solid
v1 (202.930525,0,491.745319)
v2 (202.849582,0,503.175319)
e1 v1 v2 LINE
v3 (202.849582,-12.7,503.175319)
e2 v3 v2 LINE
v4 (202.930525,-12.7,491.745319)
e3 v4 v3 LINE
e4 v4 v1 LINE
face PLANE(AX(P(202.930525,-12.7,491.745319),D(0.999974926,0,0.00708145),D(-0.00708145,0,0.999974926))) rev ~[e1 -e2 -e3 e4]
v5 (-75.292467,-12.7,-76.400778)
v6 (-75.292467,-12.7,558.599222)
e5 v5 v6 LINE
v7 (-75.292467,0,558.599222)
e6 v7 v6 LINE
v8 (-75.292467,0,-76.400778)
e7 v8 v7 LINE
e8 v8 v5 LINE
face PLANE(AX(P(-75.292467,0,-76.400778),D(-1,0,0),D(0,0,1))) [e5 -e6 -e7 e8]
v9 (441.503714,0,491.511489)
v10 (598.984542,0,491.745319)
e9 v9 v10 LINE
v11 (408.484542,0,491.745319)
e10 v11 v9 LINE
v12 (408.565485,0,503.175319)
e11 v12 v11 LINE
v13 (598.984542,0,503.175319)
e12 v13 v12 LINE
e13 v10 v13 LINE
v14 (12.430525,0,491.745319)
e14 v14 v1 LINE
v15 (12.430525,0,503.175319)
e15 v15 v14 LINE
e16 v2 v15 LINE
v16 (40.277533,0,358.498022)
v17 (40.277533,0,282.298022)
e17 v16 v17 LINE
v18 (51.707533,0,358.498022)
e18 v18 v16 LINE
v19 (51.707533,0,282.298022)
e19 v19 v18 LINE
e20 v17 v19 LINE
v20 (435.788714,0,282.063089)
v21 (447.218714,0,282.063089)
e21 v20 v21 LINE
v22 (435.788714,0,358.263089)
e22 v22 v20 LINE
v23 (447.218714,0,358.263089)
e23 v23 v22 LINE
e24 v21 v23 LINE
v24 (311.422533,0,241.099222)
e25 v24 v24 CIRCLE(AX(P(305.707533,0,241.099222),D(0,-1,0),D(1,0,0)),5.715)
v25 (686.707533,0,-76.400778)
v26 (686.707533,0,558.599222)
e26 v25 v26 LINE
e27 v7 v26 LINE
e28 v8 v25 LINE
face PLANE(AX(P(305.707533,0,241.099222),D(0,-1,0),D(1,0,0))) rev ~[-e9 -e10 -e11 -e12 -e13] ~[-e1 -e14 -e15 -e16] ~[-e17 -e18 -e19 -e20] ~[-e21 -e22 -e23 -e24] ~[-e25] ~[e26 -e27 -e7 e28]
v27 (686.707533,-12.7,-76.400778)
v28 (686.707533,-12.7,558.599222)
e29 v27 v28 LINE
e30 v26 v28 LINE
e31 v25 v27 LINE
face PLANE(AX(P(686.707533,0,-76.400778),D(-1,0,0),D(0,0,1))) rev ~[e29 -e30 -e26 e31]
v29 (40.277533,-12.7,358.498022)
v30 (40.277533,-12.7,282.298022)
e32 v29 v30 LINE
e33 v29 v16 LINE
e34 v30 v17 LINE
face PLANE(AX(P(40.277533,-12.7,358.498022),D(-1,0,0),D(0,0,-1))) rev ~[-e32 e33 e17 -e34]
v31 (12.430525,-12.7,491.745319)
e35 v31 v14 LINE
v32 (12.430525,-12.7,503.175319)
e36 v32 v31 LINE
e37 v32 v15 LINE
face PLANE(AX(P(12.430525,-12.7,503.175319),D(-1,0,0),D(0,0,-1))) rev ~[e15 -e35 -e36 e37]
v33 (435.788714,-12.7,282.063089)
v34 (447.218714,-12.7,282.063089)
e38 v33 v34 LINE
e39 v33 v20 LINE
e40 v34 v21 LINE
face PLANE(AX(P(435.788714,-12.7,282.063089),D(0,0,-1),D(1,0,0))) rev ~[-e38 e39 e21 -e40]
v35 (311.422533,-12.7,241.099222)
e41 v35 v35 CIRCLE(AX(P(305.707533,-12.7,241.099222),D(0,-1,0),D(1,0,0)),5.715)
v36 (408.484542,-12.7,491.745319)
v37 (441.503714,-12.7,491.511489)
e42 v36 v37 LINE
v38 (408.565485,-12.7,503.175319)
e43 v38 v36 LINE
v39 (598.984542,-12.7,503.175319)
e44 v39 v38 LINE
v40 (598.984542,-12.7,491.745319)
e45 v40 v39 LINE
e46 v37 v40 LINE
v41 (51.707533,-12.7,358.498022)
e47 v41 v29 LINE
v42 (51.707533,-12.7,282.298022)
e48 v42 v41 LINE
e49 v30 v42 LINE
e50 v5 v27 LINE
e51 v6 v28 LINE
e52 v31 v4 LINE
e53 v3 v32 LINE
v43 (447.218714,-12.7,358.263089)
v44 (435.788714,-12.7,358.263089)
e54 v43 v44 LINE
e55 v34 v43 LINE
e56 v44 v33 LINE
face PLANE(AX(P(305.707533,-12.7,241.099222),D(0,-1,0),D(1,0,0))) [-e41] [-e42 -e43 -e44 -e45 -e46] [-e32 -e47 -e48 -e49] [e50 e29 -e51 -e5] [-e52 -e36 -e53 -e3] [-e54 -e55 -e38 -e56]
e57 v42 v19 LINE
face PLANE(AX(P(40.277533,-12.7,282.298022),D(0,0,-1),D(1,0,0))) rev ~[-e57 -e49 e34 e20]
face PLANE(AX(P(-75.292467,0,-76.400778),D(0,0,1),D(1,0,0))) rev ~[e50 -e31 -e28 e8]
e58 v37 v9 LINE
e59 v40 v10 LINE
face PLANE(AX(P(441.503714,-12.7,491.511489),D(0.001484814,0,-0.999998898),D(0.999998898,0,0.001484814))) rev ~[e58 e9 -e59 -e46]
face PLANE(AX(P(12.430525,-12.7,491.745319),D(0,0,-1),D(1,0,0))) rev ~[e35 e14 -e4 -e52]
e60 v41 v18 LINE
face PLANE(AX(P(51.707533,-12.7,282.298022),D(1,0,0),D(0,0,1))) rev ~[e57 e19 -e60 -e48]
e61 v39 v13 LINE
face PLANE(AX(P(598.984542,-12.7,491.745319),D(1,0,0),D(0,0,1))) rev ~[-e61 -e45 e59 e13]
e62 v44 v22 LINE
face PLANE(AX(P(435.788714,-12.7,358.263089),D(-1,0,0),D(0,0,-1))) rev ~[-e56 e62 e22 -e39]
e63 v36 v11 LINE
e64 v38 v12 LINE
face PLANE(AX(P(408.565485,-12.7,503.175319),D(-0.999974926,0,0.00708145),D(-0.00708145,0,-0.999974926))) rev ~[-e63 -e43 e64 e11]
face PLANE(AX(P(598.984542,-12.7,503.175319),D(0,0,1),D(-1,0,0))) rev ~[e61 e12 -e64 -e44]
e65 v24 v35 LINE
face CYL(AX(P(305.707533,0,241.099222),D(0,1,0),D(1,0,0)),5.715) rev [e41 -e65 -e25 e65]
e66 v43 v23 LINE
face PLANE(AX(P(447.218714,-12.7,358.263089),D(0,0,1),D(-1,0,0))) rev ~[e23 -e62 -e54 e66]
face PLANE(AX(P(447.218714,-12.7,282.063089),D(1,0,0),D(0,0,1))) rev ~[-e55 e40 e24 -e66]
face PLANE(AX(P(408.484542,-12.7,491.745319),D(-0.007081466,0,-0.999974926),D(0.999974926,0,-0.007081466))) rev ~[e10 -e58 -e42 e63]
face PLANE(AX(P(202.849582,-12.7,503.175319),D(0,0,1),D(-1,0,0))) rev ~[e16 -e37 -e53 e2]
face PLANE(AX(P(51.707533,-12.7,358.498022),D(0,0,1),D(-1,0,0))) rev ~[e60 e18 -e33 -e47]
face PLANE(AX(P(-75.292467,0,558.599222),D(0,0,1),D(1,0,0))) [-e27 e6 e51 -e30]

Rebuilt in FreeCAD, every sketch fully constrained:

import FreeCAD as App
import Part
import Sketcher
Q = App.Units.Quantity

doc = App.newDocument("Part")
body = doc.addObject("PartDesign::Body", "Body")

# Sketch on XZ plane
sketch1 = body.newObject("Sketcher::SketchObject", "Sketch")
sketch1.AttachmentSupport = (doc.getObject("XZ_Plane"), [""])
sketch1.MapMode = "FlatFace"
sketch1.addGeometry(Part.LineSegment(App.Vector(-75, 559, 0), App.Vector(-75, -76, 0)), False)
sketch1.addGeometry(Part.LineSegment(App.Vector(-75, -76, 0), App.Vector(687, -76, 0)), False)
sketch1.addGeometry(Part.LineSegment(App.Vector(687, -76, 0), App.Vector(687, 559, 0)), False)
sketch1.addGeometry(Part.LineSegment(App.Vector(687, 559, 0), App.Vector(-75, 559, 0)), False)
sketch1.addGeometry(Part.Circle(App.Vector(306, 241, 0), App.Vector(0, 0, 1), 6), False)
sketch1.addConstraint(Sketcher.Constraint("Coincident", 0, 2, 1, 1))
sketch1.addConstraint(Sketcher.Constraint("Coincident", 1, 2, 2, 1))
sketch1.addConstraint(Sketcher.Constraint("Coincident", 2, 2, 3, 1))
sketch1.addConstraint(Sketcher.Constraint("Coincident", 3, 2, 0, 1))
sketch1.addConstraint(Sketcher.Constraint("Vertical", 0))
sketch1.addConstraint(Sketcher.Constraint("Horizontal", 1))
sketch1.addConstraint(Sketcher.Constraint("Vertical", 2))
sketch1.addConstraint(Sketcher.Constraint("Horizontal", 3))
sketch1.addConstraint(Sketcher.Constraint("Diameter", 4, Q("0.45 in")))
sketch1.addConstraint(Sketcher.Constraint("DistanceX", 1, 1, 1, 2, Q("30 in")))
sketch1.addConstraint(Sketcher.Constraint("DistanceY", 0, 2, 0, 1, Q("25 in")))
sketch1.addConstraint(Sketcher.Constraint("DistanceX", 0, 2, 4, 3, Q("15 in")))
sketch1.addConstraint(Sketcher.Constraint("DistanceY", 0, 2, 4, 3, Q("12.5 in")))
sketch1.addConstraint(Sketcher.Constraint("DistanceY", -1, 1, 4, 3, Q("241.099222 mm")))
sketch1.addConstraint(Sketcher.Constraint("DistanceX", -1, 1, 4, 3, Q("305.707533 mm")))
pad1 = body.newObject("PartDesign::Pad", "Pad")
pad1.Profile = sketch1
pad1.Length = Q("0.5 in")

# Sketch on XZ plane
sketch2 = body.newObject("Sketcher::SketchObject", "Sketch001")
sketch2.AttachmentSupport = (doc.getObject("XZ_Plane"), [""])
sketch2.MapMode = "FlatFace"
sketch2.AttachmentOffset = App.Placement(App.Vector(0, 0, 0.5 * 25.4), App.Rotation())
sketch2.addGeometry(Part.LineSegment(App.Vector(12.430525, 491.745319, 0), App.Vector(202.930525, 491.745319, 0)), False)
sketch2.addGeometry(Part.LineSegment(App.Vector(202.930525, 491.745319, 0), App.Vector(202.849582, 503.175319, 0)), False)
sketch2.addGeometry(Part.LineSegment(App.Vector(202.849582, 503.175319, 0), App.Vector(12.430525, 503.175319, 0)), False)
sketch2.addGeometry(Part.LineSegment(App.Vector(12.430525, 503.175319, 0), App.Vector(12.430525, 491.745319, 0)), False)
sketch2.addGeometry(Part.LineSegment(App.Vector(51.707533, 282.298022, 0), App.Vector(51.707533, 358.498022, 0)), False)
sketch2.addGeometry(Part.LineSegment(App.Vector(51.707533, 358.498022, 0), App.Vector(40.277533, 358.498022, 0)), False)
sketch2.addGeometry(Part.LineSegment(App.Vector(40.277533, 358.498022, 0), App.Vector(40.277533, 282.298022, 0)), False)
sketch2.addGeometry(Part.LineSegment(App.Vector(40.277533, 282.298022, 0), App.Vector(51.707533, 282.298022, 0)), False)
sketch2.addGeometry(Part.LineSegment(App.Vector(598.984542, 491.745319, 0), App.Vector(598.984542, 503.175319, 0)), False)
sketch2.addGeometry(Part.LineSegment(App.Vector(598.984542, 503.175319, 0), App.Vector(408.565485, 503.175319, 0)), False)
sketch2.addGeometry(Part.LineSegment(App.Vector(408.565485, 503.175319, 0), App.Vector(408.484542, 491.745319, 0)), False)
sketch2.addGeometry(Part.LineSegment(App.Vector(408.484542, 491.745319, 0), App.Vector(441.503714, 491.511489, 0)), False)
sketch2.addGeometry(Part.LineSegment(App.Vector(441.503714, 491.511489, 0), App.Vector(598.984542, 491.745319, 0)), False)
sketch2.addGeometry(Part.LineSegment(App.Vector(447.218714, 358.263089, 0), App.Vector(435.788714, 358.263089, 0)), False)
sketch2.addGeometry(Part.LineSegment(App.Vector(435.788714, 358.263089, 0), App.Vector(435.788714, 282.063089, 0)), False)
sketch2.addGeometry(Part.LineSegment(App.Vector(435.788714, 282.063089, 0), App.Vector(447.218714, 282.063089, 0)), False)
sketch2.addGeometry(Part.LineSegment(App.Vector(447.218714, 282.063089, 0), App.Vector(447.218714, 358.263089, 0)), False)
sketch2.addConstraint(Sketcher.Constraint("Coincident", 0, 2, 1, 1))
sketch2.addConstraint(Sketcher.Constraint("Coincident", 1, 2, 2, 1))
sketch2.addConstraint(Sketcher.Constraint("Coincident", 2, 2, 3, 1))
sketch2.addConstraint(Sketcher.Constraint("Coincident", 3, 2, 0, 1))
sketch2.addConstraint(Sketcher.Constraint("Coincident", 4, 2, 5, 1))
sketch2.addConstraint(Sketcher.Constraint("Coincident", 5, 2, 6, 1))
sketch2.addConstraint(Sketcher.Constraint("Coincident", 6, 2, 7, 1))
sketch2.addConstraint(Sketcher.Constraint("Coincident", 7, 2, 4, 1))
sketch2.addConstraint(Sketcher.Constraint("Coincident", 8, 2, 9, 1))
sketch2.addConstraint(Sketcher.Constraint("Coincident", 9, 2, 10, 1))
sketch2.addConstraint(Sketcher.Constraint("Coincident", 10, 2, 11, 1))
sketch2.addConstraint(Sketcher.Constraint("Coincident", 11, 2, 12, 1))
sketch2.addConstraint(Sketcher.Constraint("Coincident", 12, 2, 8, 1))
sketch2.addConstraint(Sketcher.Constraint("Coincident", 13, 2, 14, 1))
sketch2.addConstraint(Sketcher.Constraint("Coincident", 14, 2, 15, 1))
sketch2.addConstraint(Sketcher.Constraint("Coincident", 15, 2, 16, 1))
sketch2.addConstraint(Sketcher.Constraint("Coincident", 16, 2, 13, 1))
sketch2.addConstraint(Sketcher.Constraint("Horizontal", 0))
sketch2.addConstraint(Sketcher.Constraint("Horizontal", 2))
sketch2.addConstraint(Sketcher.Constraint("Vertical", 3))
sketch2.addConstraint(Sketcher.Constraint("Vertical", 4))
sketch2.addConstraint(Sketcher.Constraint("Horizontal", 5))
sketch2.addConstraint(Sketcher.Constraint("Vertical", 6))
sketch2.addConstraint(Sketcher.Constraint("Horizontal", 7))
sketch2.addConstraint(Sketcher.Constraint("Vertical", 8))
sketch2.addConstraint(Sketcher.Constraint("Horizontal", 9))
sketch2.addConstraint(Sketcher.Constraint("Horizontal", 13))
sketch2.addConstraint(Sketcher.Constraint("Vertical", 14))
sketch2.addConstraint(Sketcher.Constraint("Horizontal", 15))
sketch2.addConstraint(Sketcher.Constraint("Vertical", 16))
sketch2.addConstraint(Sketcher.Constraint("DistanceY", 4, 1, 4, 2, Q("3 in")))
sketch2.addConstraint(Sketcher.Constraint("DistanceY", 14, 2, 14, 1, Q("3 in")))
sketch2.addConstraint(Sketcher.Constraint("DistanceX", 0, 1, 0, 2, Q("7.5 in")))
sketch2.addConstraint(Sketcher.Constraint("Distance", 11, Q("1.3 in")))
sketch2.addConstraint(Sketcher.Constraint("DistanceX", 5, 2, 5, 1, Q("0.45 in")))
sketch2.addConstraint(Sketcher.Constraint("DistanceX", 13, 2, 13, 1, Q("0.45 in")))
sketch2.addConstraint(Sketcher.Constraint("DistanceY", 3, 2, 3, 1, Q("0.45 in")))
sketch2.addConstraint(Sketcher.Constraint("DistanceY", 8, 1, 8, 2, Q("0.45 in")))
sketch2.addConstraint(Sketcher.Constraint("DistanceX", 10, 2, 8, 2, Q("7.5 in")))
sketch2.addConstraint(Sketcher.Constraint("DistanceY", 0, 2, 8, 2, Q("0.45 in")))
sketch2.addConstraint(Sketcher.Constraint("DistanceY", 10, 2, 9, 2, Q("0.45 in")))
sketch2.addConstraint(Sketcher.Constraint("DistanceX", 13, 2, 11, 2, Q("0.225 in")))
sketch2.addConstraint(Sketcher.Constraint("DistanceY", 13, 2, 11, 2, Q("5.246 in")))
sketch2.addConstraint(Sketcher.Constraint("Distance", 12, Q("157.481002 mm")))
sketch2.addConstraint(Sketcher.Constraint("DistanceX", 2, 2, 2, 1, Q("190.419057 mm")))
sketch2.addConstraint(Sketcher.Constraint("DistanceX", 9, 2, 9, 1, Q("190.419057 mm")))
sketch2.addConstraint(Sketcher.Constraint("DistanceY", -1, 1, 0, 2, Q("491.745319 mm")))
sketch2.addConstraint(Sketcher.Constraint("DistanceX", -1, 1, 1, 2, Q("202.849582 mm")))
sketch2.addConstraint(Sketcher.Constraint("DistanceY", -1, 1, 4, 2, Q("358.498022 mm")))
sketch2.addConstraint(Sketcher.Constraint("DistanceX", -1, 1, 8, 2, Q("598.984542 mm")))
sketch2.addConstraint(Sketcher.Constraint("DistanceX", 4, 2, 0, 2, Q("151.222992 mm")))
pocket1 = body.newObject("PartDesign::Pocket", "Pocket")
pocket1.Profile = sketch2
pocket1.Length = Q("1 in")

doc.recompute()
